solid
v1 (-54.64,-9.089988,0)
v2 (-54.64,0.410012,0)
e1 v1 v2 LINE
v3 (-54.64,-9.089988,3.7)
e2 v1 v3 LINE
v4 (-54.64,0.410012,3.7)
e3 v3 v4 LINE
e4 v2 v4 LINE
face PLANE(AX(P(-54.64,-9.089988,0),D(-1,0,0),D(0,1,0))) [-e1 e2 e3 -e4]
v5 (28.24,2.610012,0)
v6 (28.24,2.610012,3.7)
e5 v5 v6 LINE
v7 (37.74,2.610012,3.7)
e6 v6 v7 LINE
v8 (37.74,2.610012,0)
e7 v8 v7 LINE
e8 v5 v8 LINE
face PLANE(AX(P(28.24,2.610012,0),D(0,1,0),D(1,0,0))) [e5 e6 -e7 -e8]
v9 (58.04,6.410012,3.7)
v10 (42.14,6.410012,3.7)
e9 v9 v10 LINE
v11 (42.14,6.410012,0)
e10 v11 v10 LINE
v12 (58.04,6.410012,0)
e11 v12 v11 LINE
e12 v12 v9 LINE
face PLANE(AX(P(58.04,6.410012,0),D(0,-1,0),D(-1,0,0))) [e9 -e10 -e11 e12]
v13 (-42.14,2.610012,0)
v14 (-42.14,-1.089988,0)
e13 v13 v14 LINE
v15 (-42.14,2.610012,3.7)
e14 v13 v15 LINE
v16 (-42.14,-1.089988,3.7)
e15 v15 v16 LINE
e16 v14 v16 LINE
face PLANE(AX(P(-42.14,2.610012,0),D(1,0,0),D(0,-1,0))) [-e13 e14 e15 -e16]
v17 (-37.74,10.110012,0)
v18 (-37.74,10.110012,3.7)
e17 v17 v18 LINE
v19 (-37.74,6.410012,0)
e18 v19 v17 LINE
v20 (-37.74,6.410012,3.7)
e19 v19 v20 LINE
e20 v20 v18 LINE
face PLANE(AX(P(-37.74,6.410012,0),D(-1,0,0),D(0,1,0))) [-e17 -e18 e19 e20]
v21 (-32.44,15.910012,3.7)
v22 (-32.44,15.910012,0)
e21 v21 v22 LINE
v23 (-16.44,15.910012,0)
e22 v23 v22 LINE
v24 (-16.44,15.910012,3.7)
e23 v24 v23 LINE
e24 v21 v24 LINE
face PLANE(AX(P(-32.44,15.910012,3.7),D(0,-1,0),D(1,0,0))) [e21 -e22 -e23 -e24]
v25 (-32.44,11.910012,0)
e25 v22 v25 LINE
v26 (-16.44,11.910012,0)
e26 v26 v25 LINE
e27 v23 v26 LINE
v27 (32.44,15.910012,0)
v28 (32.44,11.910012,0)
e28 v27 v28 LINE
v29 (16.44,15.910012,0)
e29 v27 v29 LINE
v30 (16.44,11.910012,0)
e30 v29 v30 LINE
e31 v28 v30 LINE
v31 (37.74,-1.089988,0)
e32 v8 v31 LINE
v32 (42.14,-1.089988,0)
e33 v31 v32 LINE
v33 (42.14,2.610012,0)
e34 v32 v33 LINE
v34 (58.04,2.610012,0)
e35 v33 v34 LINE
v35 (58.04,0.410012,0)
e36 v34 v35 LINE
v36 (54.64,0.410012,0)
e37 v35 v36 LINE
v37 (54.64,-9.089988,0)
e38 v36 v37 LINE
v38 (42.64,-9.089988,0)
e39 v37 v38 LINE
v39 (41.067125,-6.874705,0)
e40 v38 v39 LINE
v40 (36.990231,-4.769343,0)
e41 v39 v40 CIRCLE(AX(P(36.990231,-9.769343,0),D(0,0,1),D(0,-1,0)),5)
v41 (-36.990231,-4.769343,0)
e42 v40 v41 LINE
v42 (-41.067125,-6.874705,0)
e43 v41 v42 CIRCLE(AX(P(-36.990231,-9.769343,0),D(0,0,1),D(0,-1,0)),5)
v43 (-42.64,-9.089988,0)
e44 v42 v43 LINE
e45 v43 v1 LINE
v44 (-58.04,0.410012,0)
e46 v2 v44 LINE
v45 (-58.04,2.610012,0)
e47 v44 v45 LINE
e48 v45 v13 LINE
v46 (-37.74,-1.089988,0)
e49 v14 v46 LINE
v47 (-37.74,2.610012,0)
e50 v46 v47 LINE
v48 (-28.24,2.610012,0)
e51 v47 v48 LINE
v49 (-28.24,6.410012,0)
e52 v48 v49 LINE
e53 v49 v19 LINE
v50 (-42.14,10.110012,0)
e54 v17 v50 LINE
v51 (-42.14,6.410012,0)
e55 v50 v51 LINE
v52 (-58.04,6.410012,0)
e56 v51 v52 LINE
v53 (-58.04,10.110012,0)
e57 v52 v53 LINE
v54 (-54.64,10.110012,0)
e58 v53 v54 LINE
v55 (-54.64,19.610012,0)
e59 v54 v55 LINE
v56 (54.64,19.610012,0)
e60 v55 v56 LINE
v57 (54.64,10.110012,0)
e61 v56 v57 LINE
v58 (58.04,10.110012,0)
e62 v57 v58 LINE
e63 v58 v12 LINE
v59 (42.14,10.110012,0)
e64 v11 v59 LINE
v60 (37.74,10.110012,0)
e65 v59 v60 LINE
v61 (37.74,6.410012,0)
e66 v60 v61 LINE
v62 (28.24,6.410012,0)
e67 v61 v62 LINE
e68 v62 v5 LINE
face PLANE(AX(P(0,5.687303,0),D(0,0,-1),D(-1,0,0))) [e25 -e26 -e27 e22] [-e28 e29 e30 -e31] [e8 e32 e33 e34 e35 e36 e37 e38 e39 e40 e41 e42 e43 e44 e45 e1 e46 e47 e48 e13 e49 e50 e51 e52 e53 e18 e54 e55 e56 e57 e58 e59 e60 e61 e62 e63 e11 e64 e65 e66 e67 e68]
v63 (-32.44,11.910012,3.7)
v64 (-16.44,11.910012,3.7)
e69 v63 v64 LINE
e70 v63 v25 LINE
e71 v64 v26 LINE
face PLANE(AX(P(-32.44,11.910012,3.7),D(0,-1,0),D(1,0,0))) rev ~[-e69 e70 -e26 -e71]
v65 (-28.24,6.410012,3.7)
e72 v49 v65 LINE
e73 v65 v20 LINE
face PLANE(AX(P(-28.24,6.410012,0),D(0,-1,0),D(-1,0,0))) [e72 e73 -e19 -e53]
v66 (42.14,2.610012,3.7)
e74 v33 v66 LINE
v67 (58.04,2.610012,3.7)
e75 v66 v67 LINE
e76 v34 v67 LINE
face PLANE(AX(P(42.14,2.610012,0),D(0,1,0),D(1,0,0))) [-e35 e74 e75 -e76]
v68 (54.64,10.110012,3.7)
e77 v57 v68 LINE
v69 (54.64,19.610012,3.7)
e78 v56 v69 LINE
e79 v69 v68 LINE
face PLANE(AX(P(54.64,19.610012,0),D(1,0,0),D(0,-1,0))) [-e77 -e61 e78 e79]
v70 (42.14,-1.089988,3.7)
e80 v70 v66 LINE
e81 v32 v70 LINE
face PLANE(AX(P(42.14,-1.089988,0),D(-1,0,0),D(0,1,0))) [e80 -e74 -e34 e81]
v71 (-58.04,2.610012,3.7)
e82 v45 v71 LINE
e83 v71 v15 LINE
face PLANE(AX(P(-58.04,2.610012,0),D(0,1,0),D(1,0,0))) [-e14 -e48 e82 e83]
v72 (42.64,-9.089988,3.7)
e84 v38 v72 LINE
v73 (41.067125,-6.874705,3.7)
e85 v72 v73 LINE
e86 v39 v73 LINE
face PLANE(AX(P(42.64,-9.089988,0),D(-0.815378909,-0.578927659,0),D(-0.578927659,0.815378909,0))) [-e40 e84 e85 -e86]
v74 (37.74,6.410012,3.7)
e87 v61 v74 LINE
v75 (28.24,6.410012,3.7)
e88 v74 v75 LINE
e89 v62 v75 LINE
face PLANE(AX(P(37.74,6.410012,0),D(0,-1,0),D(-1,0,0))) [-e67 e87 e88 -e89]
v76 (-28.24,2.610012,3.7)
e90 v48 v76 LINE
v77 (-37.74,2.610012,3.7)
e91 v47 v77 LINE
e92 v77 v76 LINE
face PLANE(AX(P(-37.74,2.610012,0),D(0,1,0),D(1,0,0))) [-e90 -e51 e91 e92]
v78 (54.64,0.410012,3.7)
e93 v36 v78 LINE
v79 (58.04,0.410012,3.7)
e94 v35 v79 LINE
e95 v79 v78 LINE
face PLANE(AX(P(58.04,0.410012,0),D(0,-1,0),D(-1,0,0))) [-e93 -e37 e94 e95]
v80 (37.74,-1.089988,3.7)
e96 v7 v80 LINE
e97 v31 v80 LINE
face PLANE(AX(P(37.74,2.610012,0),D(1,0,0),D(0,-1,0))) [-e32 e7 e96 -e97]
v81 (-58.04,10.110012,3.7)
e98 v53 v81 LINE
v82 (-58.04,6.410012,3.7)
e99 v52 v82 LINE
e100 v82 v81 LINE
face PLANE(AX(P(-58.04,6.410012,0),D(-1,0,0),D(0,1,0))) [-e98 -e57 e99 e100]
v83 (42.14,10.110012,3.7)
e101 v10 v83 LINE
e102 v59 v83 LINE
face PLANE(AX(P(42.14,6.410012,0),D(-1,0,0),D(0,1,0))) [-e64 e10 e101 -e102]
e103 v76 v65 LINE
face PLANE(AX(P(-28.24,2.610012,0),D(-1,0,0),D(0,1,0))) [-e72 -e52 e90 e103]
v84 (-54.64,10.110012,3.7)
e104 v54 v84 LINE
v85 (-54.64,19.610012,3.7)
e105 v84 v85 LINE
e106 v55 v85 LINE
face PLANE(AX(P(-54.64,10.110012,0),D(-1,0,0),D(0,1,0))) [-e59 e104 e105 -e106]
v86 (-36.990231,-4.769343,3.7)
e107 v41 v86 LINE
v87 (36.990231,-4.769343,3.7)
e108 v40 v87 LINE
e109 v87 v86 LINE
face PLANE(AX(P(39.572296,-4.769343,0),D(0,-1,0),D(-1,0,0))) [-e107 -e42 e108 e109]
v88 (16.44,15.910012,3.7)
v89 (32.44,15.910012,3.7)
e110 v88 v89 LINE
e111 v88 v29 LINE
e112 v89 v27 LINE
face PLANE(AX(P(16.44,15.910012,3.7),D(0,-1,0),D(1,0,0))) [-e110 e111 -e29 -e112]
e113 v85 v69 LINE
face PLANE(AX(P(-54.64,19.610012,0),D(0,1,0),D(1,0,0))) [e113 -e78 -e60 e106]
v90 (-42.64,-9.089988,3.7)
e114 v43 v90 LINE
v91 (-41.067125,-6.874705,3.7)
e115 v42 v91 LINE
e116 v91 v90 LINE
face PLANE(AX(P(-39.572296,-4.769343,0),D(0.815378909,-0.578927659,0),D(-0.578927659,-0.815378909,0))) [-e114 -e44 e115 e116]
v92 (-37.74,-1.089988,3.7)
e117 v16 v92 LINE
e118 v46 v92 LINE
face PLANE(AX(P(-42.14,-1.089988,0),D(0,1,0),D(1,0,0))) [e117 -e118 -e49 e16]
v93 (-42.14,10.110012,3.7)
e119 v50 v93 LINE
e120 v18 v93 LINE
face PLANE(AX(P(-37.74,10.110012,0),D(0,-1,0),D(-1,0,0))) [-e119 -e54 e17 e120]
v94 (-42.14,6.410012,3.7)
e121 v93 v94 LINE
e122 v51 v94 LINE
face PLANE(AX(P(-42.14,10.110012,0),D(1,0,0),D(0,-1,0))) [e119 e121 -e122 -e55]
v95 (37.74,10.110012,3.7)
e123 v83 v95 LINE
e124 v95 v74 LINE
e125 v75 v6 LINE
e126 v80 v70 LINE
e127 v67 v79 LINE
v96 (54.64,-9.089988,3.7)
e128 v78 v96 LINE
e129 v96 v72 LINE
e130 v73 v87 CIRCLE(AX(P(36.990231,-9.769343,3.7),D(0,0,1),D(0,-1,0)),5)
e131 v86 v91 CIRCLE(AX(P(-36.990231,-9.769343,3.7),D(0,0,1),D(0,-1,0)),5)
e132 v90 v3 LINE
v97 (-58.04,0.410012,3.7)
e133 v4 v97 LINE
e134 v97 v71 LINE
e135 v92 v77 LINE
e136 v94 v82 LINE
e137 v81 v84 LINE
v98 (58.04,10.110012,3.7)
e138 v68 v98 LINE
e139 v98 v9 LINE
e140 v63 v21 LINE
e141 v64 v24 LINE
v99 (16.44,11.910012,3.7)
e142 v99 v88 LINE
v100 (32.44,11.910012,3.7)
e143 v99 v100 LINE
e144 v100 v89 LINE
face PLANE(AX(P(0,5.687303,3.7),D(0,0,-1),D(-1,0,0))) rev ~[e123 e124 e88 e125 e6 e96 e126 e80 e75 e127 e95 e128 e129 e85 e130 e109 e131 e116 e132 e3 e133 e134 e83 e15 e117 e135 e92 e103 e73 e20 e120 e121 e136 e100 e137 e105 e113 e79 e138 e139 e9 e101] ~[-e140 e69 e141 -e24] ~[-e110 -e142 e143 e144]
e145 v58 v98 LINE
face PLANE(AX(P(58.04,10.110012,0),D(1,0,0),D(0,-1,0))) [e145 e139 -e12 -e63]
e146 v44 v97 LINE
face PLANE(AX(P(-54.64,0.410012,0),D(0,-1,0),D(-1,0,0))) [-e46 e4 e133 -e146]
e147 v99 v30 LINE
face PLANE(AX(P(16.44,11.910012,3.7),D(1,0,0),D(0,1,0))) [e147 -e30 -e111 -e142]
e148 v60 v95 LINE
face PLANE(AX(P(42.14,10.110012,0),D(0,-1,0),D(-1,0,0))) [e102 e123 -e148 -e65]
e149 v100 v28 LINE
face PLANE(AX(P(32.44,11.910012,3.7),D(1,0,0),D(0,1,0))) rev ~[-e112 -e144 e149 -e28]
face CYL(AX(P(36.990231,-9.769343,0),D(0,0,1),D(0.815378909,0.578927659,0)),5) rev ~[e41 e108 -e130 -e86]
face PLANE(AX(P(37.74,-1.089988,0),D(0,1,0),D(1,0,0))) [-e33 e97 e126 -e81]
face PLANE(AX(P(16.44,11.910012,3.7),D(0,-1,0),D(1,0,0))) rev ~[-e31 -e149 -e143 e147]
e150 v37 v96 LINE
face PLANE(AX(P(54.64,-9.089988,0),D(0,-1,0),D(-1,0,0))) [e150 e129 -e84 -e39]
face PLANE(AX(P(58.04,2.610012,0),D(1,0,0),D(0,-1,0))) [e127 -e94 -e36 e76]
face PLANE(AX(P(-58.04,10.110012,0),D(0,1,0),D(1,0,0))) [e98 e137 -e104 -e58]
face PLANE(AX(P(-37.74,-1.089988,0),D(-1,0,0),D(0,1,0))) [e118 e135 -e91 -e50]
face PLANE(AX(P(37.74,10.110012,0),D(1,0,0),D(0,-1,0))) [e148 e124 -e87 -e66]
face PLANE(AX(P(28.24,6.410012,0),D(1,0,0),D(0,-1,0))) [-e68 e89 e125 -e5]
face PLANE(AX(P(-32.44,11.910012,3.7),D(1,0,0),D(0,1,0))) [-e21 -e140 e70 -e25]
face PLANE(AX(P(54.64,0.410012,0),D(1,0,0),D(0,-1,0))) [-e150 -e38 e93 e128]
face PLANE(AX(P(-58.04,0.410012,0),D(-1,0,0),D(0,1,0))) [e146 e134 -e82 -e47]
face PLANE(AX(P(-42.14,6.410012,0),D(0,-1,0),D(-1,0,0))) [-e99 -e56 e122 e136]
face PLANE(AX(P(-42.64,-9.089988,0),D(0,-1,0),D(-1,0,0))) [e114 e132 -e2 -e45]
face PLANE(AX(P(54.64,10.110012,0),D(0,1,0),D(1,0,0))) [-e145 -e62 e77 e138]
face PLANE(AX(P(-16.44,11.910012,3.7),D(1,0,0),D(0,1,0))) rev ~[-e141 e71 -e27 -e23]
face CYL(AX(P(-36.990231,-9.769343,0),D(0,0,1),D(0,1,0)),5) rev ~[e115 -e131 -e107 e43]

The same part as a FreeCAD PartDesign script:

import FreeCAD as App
import Part
import Sketcher


def edges_at(feature, points):
    """Names of the edges that pass closest to the given points."""
    edges = feature.Shape.Edges
    near = lambda p: min(range(len(edges)), key=lambda i: edges[i].distToShape(Part.Vertex(*p))[0])
    return sorted({f"Edge{near(p) + 1}" for p in points})


def add_polygon(sketch, points):
    """Adds a closed chain of lines whose ends are joined by coincident constraints."""
    first, n = sketch.GeometryCount, len(points)
    for a, b in zip(points, points[1:] + points[:1]):
        sketch.addGeometry(Part.LineSegment(App.Vector(*a, 0), App.Vector(*b, 0)), False)
    for i in range(n):
        sketch.addConstraint(Sketcher.Constraint("Coincident", first + i, 2, first + (i + 1) % n, 1))

doc = App.newDocument("Part")
body = doc.addObject("PartDesign::Body", "Body")

# Sketch on XY plane
sketch1 = body.newObject("Sketcher::SketchObject", "Sketch")
sketch1.AttachmentSupport = (doc.getObject("XY_Plane"), [""])
sketch1.MapMode = "FlatFace"
add_polygon(sketch1, [(54.6, 19.6), (-54.6, 19.6), (-54.6, 10.1), (-58, 10.1), (-58, 6.4), (-42.1, 6.4), (-42.1, 10.1), (-37.7, 10.1), (-37.7, 6.4), (-28.2, 6.4), (-28.2, 2.6), (-37.7, 2.6), (-37.7, -1.1), (-42.1, -1.1), (-42.1, 2.6), (-58, 2.6), (-58, 0.4), (-54.6, 0.4), (-54.6, -9.1), (-42.6, -9.1), (-39.6, -4.8), (39.6, -4.8), (42.6, -9.1), (54.6, -9.1), (54.6, 0.4), (58, 0.4), (58, 2.6), (42.1, 2.6), (42.1, -1.1), (37.7, -1.1), (37.7, 2.6), (28.2, 2.6), (28.2, 6.4), (37.7, 6.4), (37.7, 10.1), (42.1, 10.1), (42.1, 6.4), (58, 6.4), (58, 10.1), (54.6, 10.1)])  # lines 0-39
sketch1.addConstraint([
    Sketcher.Constraint("Horizontal", 0),
    Sketcher.Constraint("Vertical", 1),
    Sketcher.Constraint("Horizontal", 2),
    Sketcher.Constraint("Vertical", 3),
    Sketcher.Constraint("Horizontal", 4),
    Sketcher.Constraint("Vertical", 5),
    Sketcher.Constraint("Horizontal", 6),
    Sketcher.Constraint("Vertical", 7),
    Sketcher.Constraint("Horizontal", 8),
    Sketcher.Constraint("Vertical", 9),
    Sketcher.Constraint("Horizontal", 10),
    Sketcher.Constraint("Vertical", 11),
    Sketcher.Constraint("Horizontal", 12),
    Sketcher.Constraint("Vertical", 13),
    Sketcher.Constraint("Horizontal", 14),
    Sketcher.Constraint("Vertical", 15),
    Sketcher.Constraint("Horizontal", 16),
    Sketcher.Constraint("Vertical", 17),
    Sketcher.Constraint("Horizontal", 18),
    Sketcher.Constraint("Horizontal", 20),
    Sketcher.Constraint("Horizontal", 22),
    Sketcher.Constraint("Vertical", 23),
    Sketcher.Constraint("Horizontal", 24),
    Sketcher.Constraint("Vertical", 25),
    Sketcher.Constraint("Horizontal", 26),
    Sketcher.Constraint("Vertical", 27),
    Sketcher.Constraint("Horizontal", 28),
    Sketcher.Constraint("Vertical", 29),
    Sketcher.Constraint("Horizontal", 30),
    Sketcher.Constraint("Vertical", 31),
    Sketcher.Constraint("Horizontal", 32),
    Sketcher.Constraint("Vertical", 33),
    Sketcher.Constraint("Horizontal", 34),
    Sketcher.Constraint("Vertical", 35),
    Sketcher.Constraint("Horizontal", 36),
    Sketcher.Constraint("Vertical", 37),
    Sketcher.Constraint("Horizontal", 38),
    Sketcher.Constraint("Vertical", 39),
    Sketcher.Constraint("Symmetric", 18, 2, 21, 2, -2),
    Sketcher.Constraint("Symmetric", 16, 2, 23, 2, -2),
    Sketcher.Constraint("Symmetric", 14, 2, 25, 2, -2),
    Sketcher.Constraint("Symmetric", 12, 2, 27, 2, -2),
    Sketcher.Constraint("Symmetric", 10, 2, 29, 2, -2),
    Sketcher.Constraint("Symmetric", 8, 2, 31, 2, -2),
    Sketcher.Constraint("Symmetric", 6, 2, 33, 2, -2),
    Sketcher.Constraint("Symmetric", 4, 2, 35, 2, -2),
    Sketcher.Constraint("Symmetric", 2, 2, 37, 2, -2),
    Sketcher.Constraint("Horizontal", 2, 2, 5, 2),
    Sketcher.Constraint("Horizontal", 4, 2, 7, 2),
    Sketcher.Constraint("Horizontal", 10, 2, 13, 2),
    Sketcher.Constraint("Vertical", 7, 2, 10, 2),
    Sketcher.Constraint("Vertical", 5, 2, 12, 2),
    Sketcher.Constraint("Vertical", 3, 2, 14, 2),
    Sketcher.Constraint("Vertical", 1, 2, 16, 2),
    Sketcher.Constraint("Vertical", 23, 2, 38, 2),
    Sketcher.Constraint("Equal", 32, 1),
    Sketcher.Constraint("Equal", 7, 11),
    Sketcher.Constraint("Equal", 1, 17),
    Sketcher.Constraint("Equal", 19, 21),
    Sketcher.Constraint("DistanceX", 18, 1, 18, 2, 12.0),
    Sketcher.Constraint("DistanceX", 2, 2, 2, 1, 3.4),
    Sketcher.Constraint("DistanceX", 4, 1, 4, 2, 15.9),
    Sketcher.Constraint("DistanceX", 6, 1, 6, 2, 4.4),
    Sketcher.Constraint("DistanceX", 8, 1, 8, 2, 9.5),
    Sketcher.Constraint("DistanceY", 3, 2, 3, 1, 3.7),
    Sketcher.Constraint("DistanceY", 9, 2, 9, 1, 3.8),
    Sketcher.Constraint("DistanceY", 15, 2, 15, 1, 2.2),
    Sketcher.Constraint("DistanceX", 0, 2, 0, 1, 109.28),
    Sketcher.Constraint("Distance", 19, 5.298941),
    Sketcher.Constraint("DistanceX", 20, 1, 20, 2, 79.144593),
    Sketcher.Constraint("DistanceY", -1, 1, 0, 2, 19.610012),
])
pad1 = body.newObject("PartDesign::Pad", "Pad")
pad1.Profile = sketch1
pad1.Length = 3.7
doc.recompute()

fillet = body.newObject("PartDesign::Fillet", "Fillet")
fillet.Base = (pad1, edges_at(pad1, [(39.572, -4.769, 1.85), (-39.572, -4.769, 1.85)]))
fillet.Radius = 5

# Sketch on XY plane
sketch2 = body.newObject("Sketcher::SketchObject", "Sketch001")
sketch2.AttachmentSupport = (doc.getObject("XY_Plane"), [""])
sketch2.MapMode = "FlatFace"
sketch2.AttachmentOffset = App.Placement(App.Vector(0, 0, 3.7), App.Rotation())
add_polygon(sketch2, [(16.4, 15.9), (16.4, 11.9), (32.4, 11.9), (32.4, 15.9)])  # lines 0-3
add_polygon(sketch2, [(-32.4, 15.9), (-32.4, 11.9), (-16.4, 11.9), (-16.4, 15.9)])  # lines 4-7
sketch2.addConstraint([
    Sketcher.Constraint("Vertical", 0),
    Sketcher.Constraint("Horizontal", 1),
    Sketcher.Constraint("Vertical", 2),
    Sketcher.Constraint("Horizontal", 3),
    Sketcher.Constraint("Vertical", 4),
    Sketcher.Constraint("Horizontal", 5),
    Sketcher.Constraint("Vertical", 6),
    Sketcher.Constraint("Horizontal", 7),
    Sketcher.Constraint("Symmetric", 1, 2, 4, 2, -2),
    Sketcher.Constraint("Symmetric", 3, 2, 6, 2, -2),
    Sketcher.Constraint("DistanceX", 1, 1, 1, 2, 16.0),
    Sketcher.Constraint("DistanceY", 0, 2, 0, 1, 4.0),
    Sketcher.Constraint("DistanceX", -1, 1, 0, 2, 16.44),
    Sketcher.Constraint("DistanceY", -1, 1, 0, 2, 11.910012),
])
pocket1 = body.newObject("PartDesign::Pocket", "Pocket")
pocket1.Profile = sketch2
pocket1.Type = "ThroughAll"

doc.recompute()
